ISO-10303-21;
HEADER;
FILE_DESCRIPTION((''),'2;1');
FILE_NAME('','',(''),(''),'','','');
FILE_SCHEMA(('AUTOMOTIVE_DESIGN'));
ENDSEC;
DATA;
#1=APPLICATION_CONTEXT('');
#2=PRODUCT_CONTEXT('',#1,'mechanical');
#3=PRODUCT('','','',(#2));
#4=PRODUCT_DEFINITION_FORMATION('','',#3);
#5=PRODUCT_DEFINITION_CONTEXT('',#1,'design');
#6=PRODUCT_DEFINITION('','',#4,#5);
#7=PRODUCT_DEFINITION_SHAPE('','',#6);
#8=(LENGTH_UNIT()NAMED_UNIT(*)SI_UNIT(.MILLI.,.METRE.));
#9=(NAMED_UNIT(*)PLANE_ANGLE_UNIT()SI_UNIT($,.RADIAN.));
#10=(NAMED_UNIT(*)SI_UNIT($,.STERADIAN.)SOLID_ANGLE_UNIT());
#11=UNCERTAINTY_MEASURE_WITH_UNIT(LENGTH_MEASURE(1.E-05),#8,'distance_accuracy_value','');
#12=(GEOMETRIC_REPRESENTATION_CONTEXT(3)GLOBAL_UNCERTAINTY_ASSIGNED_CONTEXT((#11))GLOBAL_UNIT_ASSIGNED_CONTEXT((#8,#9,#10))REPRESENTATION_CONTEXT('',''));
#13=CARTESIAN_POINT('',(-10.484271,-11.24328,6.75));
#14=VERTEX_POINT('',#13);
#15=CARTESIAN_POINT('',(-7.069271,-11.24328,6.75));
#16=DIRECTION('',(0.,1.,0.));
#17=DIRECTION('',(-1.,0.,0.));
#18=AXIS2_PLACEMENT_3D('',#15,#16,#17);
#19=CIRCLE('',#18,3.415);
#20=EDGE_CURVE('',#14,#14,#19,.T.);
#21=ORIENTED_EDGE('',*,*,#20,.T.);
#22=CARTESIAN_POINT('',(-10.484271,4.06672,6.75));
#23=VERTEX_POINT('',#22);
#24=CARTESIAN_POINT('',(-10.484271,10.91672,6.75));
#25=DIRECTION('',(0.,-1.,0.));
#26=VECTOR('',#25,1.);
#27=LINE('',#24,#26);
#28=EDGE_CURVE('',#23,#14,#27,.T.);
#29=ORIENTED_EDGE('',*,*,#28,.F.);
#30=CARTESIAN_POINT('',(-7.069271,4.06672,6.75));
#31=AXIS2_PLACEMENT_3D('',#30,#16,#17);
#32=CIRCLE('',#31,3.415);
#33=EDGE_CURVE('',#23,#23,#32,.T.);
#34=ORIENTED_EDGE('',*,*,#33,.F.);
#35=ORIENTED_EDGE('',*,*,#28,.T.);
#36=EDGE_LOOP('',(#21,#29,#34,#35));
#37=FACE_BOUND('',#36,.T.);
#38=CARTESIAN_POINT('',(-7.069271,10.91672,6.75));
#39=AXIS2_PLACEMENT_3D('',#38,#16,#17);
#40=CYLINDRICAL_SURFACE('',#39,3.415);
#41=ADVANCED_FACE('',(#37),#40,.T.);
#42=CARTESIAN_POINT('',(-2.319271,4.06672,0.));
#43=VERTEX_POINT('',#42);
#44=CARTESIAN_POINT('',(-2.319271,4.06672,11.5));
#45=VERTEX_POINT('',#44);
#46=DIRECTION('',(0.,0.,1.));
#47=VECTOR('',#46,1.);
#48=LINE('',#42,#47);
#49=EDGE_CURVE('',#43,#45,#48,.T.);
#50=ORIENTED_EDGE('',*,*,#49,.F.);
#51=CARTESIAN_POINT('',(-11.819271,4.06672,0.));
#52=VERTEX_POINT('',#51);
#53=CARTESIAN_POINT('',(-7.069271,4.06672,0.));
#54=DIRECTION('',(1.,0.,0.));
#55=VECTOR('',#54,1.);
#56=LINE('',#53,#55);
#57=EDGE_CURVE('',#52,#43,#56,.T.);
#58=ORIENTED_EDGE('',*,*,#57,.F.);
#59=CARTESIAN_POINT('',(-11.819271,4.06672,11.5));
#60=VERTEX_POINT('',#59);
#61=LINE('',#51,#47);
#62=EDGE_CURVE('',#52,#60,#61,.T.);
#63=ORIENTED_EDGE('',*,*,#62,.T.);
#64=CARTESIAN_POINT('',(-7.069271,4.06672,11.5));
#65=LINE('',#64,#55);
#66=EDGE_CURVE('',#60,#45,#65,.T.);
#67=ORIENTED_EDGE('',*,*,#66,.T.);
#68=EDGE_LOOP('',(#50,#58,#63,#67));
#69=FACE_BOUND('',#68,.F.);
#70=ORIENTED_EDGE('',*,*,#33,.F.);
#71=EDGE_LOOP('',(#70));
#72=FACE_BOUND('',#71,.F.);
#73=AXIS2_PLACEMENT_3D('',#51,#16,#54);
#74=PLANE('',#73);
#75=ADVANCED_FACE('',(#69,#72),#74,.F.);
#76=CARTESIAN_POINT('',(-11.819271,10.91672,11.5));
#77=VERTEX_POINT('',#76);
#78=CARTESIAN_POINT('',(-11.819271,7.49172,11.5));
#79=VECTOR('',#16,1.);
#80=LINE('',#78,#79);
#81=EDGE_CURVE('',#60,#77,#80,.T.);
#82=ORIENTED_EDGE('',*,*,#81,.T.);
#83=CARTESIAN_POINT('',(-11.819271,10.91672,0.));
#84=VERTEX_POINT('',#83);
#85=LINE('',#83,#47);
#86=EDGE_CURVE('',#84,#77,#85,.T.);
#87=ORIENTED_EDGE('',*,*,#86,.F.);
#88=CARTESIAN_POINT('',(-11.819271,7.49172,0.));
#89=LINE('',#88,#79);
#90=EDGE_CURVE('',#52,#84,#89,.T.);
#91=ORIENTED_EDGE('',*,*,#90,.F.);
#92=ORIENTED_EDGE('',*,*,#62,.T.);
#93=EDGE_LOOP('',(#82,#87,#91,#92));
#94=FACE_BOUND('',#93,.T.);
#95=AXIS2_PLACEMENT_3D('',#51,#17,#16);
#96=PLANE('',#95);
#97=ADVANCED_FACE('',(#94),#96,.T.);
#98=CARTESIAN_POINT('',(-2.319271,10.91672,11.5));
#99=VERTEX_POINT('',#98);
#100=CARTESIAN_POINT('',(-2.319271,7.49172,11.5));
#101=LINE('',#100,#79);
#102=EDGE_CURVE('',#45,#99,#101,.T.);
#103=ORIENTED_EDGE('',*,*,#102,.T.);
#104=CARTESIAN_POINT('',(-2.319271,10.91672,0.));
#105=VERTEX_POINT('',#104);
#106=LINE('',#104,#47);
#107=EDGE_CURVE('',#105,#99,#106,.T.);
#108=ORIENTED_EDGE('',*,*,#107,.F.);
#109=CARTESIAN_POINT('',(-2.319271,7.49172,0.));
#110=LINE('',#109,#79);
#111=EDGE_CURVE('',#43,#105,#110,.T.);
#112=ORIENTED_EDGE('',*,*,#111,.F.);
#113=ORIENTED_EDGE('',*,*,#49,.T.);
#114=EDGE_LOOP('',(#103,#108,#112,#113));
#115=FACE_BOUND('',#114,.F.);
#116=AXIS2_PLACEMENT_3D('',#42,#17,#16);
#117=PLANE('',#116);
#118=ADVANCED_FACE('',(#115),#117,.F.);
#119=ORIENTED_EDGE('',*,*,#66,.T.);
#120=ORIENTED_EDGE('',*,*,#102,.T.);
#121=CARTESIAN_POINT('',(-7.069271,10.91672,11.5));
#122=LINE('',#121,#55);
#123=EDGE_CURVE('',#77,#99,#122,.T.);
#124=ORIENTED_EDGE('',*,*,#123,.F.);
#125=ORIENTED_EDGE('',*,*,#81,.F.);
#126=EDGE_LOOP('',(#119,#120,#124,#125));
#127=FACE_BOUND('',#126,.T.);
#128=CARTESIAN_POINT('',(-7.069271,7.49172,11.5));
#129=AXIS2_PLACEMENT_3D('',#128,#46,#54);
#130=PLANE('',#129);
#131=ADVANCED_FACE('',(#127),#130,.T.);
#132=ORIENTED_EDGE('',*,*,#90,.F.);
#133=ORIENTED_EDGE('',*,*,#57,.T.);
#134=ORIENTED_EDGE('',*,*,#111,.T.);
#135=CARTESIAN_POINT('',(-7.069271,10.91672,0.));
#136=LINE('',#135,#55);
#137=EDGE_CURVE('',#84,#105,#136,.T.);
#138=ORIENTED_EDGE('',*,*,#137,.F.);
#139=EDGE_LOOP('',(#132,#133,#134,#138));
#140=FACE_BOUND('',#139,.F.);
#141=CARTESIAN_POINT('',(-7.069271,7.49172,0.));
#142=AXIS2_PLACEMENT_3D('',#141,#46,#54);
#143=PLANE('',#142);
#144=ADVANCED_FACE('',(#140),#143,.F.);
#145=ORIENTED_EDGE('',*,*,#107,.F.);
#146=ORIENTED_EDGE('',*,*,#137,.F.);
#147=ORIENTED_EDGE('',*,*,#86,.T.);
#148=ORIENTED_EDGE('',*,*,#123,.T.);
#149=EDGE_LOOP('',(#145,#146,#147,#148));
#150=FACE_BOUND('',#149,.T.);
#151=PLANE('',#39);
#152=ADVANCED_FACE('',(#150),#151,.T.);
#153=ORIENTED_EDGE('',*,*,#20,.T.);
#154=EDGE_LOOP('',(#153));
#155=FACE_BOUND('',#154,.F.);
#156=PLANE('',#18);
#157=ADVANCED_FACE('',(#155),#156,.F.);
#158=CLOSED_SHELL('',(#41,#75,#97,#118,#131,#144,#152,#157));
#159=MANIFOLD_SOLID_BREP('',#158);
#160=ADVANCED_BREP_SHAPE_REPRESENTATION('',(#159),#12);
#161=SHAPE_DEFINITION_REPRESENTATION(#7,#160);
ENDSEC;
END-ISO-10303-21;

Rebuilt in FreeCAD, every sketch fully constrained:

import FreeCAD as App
import Part
import Sketcher
from FreeCAD import Vector

doc = App.newDocument("Part")
body = doc.addObject("PartDesign::Body", "Body")

sketch1 = body.newObject("Sketcher::SketchObject", "Sketch")
sketch1.AttachmentSupport = (doc.getObject("XY_Plane"), [""])
sketch1.MapMode = "FlatFace"
sketch1.addGeometry([
    Part.LineSegment(Vector(-12, 11, 0), Vector(-12, 4, 0)),
    Part.LineSegment(Vector(-12, 4, 0), Vector(-2, 4, 0)),
    Part.LineSegment(Vector(-2, 4, 0), Vector(-2, 11, 0)),
    Part.LineSegment(Vector(-2, 11, 0), Vector(-12, 11, 0)),
], False)
sketch1.addConstraint([
    Sketcher.Constraint("Coincident", 0, 2, 1, 1),
    Sketcher.Constraint("Coincident", 1, 2, 2, 1),
    Sketcher.Constraint("Coincident", 2, 2, 3, 1),
    Sketcher.Constraint("Coincident", 3, 2, 0, 1),
    Sketcher.Constraint("Vertical", 0),
    Sketcher.Constraint("Horizontal", 1),
    Sketcher.Constraint("Vertical", 2),
    Sketcher.Constraint("Horizontal", 3),
    Sketcher.Constraint("DistanceX", 1, 1, 1, 2, 9.5),
    Sketcher.Constraint("DistanceY", 0, 2, 0, 1, 6.85),
    Sketcher.Constraint("DistanceX", 0, 2, -1, 1, 11.819271),
    Sketcher.Constraint("DistanceY", -1, 1, 0, 2, 4.06672),
])
pad1 = body.newObject("PartDesign::Pad", "Pad")
pad1.Profile = sketch1
pad1.Length = 11.5

sketch2 = body.newObject("Sketcher::SketchObject", "Sketch001")
sketch2.AttachmentSupport = (doc.getObject("XZ_Plane"), [""])
sketch2.MapMode = "FlatFace"
sketch2.AttachmentOffset = App.Placement(Vector(0, 0, -10.91672), App.Rotation())
sketch2.addGeometry(Part.Circle(Vector(-7.1, 6.8, 0), Vector(0, 0, 1), 3.4), False)
sketch2.addConstraint([
    Sketcher.Constraint("Diameter", 0, 6.83),
    Sketcher.Constraint("DistanceY", -1, 1, 0, 3, 6.75),
    Sketcher.Constraint("DistanceX", 0, 3, -1, 1, 7.069271),
])
pad2 = body.newObject("PartDesign::Pad", "Pad001")
pad2.Profile = sketch2
pad2.Length = 22.16

doc.recompute()
